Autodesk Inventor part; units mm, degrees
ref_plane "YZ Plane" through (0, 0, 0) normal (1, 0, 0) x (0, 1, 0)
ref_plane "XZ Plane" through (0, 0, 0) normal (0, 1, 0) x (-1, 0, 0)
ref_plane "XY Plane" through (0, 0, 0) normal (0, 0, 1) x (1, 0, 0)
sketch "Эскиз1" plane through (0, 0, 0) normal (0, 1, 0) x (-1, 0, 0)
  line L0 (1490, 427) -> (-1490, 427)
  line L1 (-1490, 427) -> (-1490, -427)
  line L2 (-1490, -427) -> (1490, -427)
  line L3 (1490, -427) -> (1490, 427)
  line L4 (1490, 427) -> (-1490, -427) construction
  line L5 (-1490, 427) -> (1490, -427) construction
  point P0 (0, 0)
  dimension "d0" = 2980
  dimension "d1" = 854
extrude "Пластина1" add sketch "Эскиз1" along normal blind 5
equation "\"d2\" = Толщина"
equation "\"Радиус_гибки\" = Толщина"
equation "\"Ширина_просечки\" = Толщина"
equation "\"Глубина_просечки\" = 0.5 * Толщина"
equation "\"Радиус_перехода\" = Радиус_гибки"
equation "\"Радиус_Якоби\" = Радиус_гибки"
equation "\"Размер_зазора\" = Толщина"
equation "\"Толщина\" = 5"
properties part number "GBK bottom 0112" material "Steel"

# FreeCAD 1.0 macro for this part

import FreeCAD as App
import Part
import Sketcher

V = App.Vector


def add_polygon(sketch, points):
    """Adds a closed chain of lines whose ends are joined by coincident constraints."""
    first, n = sketch.GeometryCount, len(points)
    for a, b in zip(points, points[1:] + points[:1]):
        sketch.addGeometry(Part.LineSegment(App.Vector(*a, 0), App.Vector(*b, 0)), False)
    for i in range(n):
        sketch.addConstraint(Sketcher.Constraint("Coincident", first + i, 2, first + (i + 1) % n, 1))

doc = App.newDocument("Part")
body = doc.addObject("PartDesign::Body", "Body")

# Sketch on XZ plane
sketch1 = doc.addObject("Sketcher::SketchObject", "Sketch")
body.addObject(sketch1)
sketch1.AttachmentSupport = (doc.XZ_Plane, [""])
sketch1.MapMode = "FlatFace"
add_polygon(sketch1, [(-1490, -427), (-1490, 427), (1490, 427), (1490, -427)])  # lines 0-3
sketch1.addConstraint([
    Sketcher.Constraint("Vertical", 0),
    Sketcher.Constraint("Horizontal", 1),
    Sketcher.Constraint("Vertical", 2),
    Sketcher.Constraint("Horizontal", 3),
    Sketcher.Constraint("Symmetric", 0, 2, 2, 2, -1, 1),
    Sketcher.Constraint("DistanceX", 1, 1, 1, 2, 2980.0),
    Sketcher.Constraint("DistanceY", 0, 1, 0, 2, 854.0),
])
pad1 = doc.addObject("PartDesign::Pad", "Pad")
body.addObject(pad1)
pad1.Profile = sketch1
pad1.Length = 5
pad1.Reversed = True

doc.recompute()
